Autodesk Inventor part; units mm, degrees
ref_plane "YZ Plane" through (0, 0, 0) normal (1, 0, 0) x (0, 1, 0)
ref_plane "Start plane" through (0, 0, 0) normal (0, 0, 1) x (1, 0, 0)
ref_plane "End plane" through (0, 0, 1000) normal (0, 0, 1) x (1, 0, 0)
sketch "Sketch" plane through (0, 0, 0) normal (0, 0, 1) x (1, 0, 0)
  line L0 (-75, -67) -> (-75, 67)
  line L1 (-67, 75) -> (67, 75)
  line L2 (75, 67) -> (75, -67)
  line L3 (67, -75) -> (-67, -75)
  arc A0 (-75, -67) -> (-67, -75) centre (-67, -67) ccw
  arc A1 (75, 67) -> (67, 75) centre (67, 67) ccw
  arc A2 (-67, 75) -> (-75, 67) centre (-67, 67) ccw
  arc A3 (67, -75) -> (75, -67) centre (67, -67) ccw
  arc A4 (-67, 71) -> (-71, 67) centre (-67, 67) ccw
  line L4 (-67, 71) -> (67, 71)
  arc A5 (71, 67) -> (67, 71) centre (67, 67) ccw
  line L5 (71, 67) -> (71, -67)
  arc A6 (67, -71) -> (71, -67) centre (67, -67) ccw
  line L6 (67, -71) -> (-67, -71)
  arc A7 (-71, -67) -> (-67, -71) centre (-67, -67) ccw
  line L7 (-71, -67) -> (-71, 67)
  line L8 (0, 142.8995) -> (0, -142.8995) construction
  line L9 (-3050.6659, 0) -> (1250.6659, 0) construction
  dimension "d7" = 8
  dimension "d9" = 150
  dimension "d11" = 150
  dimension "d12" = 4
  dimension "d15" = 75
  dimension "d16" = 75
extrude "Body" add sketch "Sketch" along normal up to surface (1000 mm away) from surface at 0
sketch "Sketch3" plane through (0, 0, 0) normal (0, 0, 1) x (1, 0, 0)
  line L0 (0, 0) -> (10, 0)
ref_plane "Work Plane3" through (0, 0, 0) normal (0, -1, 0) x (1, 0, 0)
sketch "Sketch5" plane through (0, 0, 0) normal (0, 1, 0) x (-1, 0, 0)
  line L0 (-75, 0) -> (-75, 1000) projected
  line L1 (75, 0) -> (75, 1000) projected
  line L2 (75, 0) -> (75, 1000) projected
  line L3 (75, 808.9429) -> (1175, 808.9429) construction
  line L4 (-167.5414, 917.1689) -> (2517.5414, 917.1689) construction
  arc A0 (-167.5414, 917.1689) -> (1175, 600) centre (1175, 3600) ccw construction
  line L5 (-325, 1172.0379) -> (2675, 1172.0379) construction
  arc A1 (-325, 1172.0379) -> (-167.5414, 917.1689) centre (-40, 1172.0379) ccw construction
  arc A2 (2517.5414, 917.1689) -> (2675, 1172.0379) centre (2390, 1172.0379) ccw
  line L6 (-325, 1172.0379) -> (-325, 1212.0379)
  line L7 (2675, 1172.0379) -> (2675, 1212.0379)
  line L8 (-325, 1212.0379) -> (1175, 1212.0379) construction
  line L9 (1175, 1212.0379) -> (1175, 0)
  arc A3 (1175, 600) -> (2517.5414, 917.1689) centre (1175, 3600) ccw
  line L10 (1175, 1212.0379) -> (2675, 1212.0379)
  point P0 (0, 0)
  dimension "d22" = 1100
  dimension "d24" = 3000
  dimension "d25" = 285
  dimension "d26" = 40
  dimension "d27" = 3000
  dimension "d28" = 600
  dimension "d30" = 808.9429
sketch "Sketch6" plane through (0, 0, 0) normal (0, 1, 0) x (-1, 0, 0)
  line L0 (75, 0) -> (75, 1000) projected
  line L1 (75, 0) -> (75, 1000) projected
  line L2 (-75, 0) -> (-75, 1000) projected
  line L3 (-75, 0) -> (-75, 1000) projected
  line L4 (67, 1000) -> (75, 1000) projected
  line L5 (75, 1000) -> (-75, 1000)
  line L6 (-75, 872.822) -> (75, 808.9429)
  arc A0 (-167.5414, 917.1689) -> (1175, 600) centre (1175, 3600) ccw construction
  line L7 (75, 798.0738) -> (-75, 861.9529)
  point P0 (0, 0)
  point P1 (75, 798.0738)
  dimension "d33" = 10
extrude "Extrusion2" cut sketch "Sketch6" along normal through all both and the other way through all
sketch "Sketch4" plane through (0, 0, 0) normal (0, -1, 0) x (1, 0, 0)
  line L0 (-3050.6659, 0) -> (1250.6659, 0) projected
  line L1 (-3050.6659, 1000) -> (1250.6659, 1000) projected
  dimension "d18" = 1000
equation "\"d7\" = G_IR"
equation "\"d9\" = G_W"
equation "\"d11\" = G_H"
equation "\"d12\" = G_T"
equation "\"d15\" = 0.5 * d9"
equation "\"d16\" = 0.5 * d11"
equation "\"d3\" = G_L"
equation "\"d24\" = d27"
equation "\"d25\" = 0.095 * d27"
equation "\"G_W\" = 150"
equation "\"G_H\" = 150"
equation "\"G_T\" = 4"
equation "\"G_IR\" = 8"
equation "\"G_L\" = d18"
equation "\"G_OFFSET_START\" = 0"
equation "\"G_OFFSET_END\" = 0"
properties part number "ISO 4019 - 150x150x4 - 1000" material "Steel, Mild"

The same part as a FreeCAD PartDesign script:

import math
import FreeCAD as App
import Part
import Sketcher
from FreeCAD import Vector
Q = App.Units.Quantity


def add_polygon(sketch, points):
    """Adds a closed chain of lines whose ends are joined by coincident constraints."""
    first, n = sketch.GeometryCount, len(points)
    for a, b in zip(points, points[1:] + points[:1]):
        sketch.addGeometry(Part.LineSegment(App.Vector(*a, 0), App.Vector(*b, 0)), False)
    for i in range(n):
        sketch.addConstraint(Sketcher.Constraint("Coincident", first + i, 2, first + (i + 1) % n, 1))

doc = App.newDocument("Part")
body = doc.addObject("PartDesign::Body", "Body")

# Sketch on XY plane
sketch1 = doc.addObject("Sketcher::SketchObject", "Sketch")
body.addObject(sketch1)
sketch1.AttachmentSupport = (doc.XY_Plane, [""])
sketch1.MapMode = "FlatFace"
sketch1.addGeometry(Part.LineSegment(Vector(-75, 67, 0), Vector(-75, -67, 0)), False)
sketch1.addGeometry(Part.ArcOfCircle(Part.Circle(Vector(-67, -67, 0), Vector(0, 0, 1), 8), math.radians(180), math.radians(270)), False)
sketch1.addGeometry(Part.LineSegment(Vector(-67, -75, 0), Vector(67, -75, 0)), False)
sketch1.addGeometry(Part.ArcOfCircle(Part.Circle(Vector(67, -67, 0), Vector(0, 0, 1), 8), math.radians(-90), math.radians(0)), False)
sketch1.addGeometry(Part.LineSegment(Vector(75, -67, 0), Vector(75, 67, 0)), False)
sketch1.addGeometry(Part.ArcOfCircle(Part.Circle(Vector(67, 67, 0), Vector(0, 0, 1), 8), math.radians(0), math.radians(90)), False)
sketch1.addGeometry(Part.LineSegment(Vector(67, 75, 0), Vector(-67, 75, 0)), False)
sketch1.addGeometry(Part.ArcOfCircle(Part.Circle(Vector(-67, 67, 0), Vector(0, 0, 1), 8), math.radians(90), math.radians(180)), False)
sketch1.addGeometry(Part.ArcOfCircle(Part.Circle(Vector(-67, 67, 0), Vector(0, 0, 1), 4), math.radians(90), math.radians(180)), False)
sketch1.addGeometry(Part.LineSegment(Vector(-67, 71, 0), Vector(67, 71, 0)), False)
sketch1.addGeometry(Part.ArcOfCircle(Part.Circle(Vector(67, 67, 0), Vector(0, 0, 1), 4), math.radians(0), math.radians(90)), False)
sketch1.addGeometry(Part.LineSegment(Vector(71, 67, 0), Vector(71, -67, 0)), False)
sketch1.addGeometry(Part.ArcOfCircle(Part.Circle(Vector(67, -67, 0), Vector(0, 0, 1), 4), math.radians(-90), math.radians(0)), False)
sketch1.addGeometry(Part.LineSegment(Vector(67, -71, 0), Vector(-67, -71, 0)), False)
sketch1.addGeometry(Part.ArcOfCircle(Part.Circle(Vector(-67, -67, 0), Vector(0, 0, 1), 4), math.radians(180), math.radians(270)), False)
sketch1.addGeometry(Part.LineSegment(Vector(-71, -67, 0), Vector(-71, 67, 0)), False)
sketch1.addConstraint(Sketcher.Constraint("Tangent", 0, 2, 1, 1))
sketch1.addConstraint(Sketcher.Constraint("Tangent", 1, 2, 2, 1))
sketch1.addConstraint(Sketcher.Constraint("Tangent", 2, 2, 3, 1))
sketch1.addConstraint(Sketcher.Constraint("Tangent", 3, 2, 4, 1))
sketch1.addConstraint(Sketcher.Constraint("Tangent", 4, 2, 5, 1))
sketch1.addConstraint(Sketcher.Constraint("Tangent", 5, 2, 6, 1))
sketch1.addConstraint(Sketcher.Constraint("Tangent", 6, 2, 7, 1))
sketch1.addConstraint(Sketcher.Constraint("Tangent", 7, 2, 0, 1))
sketch1.addConstraint(Sketcher.Constraint("Tangent", 8, 1, 9, 1))
sketch1.addConstraint(Sketcher.Constraint("Tangent", 9, 2, 10, 2))
sketch1.addConstraint(Sketcher.Constraint("Tangent", 10, 1, 11, 1))
sketch1.addConstraint(Sketcher.Constraint("Tangent", 11, 2, 12, 2))
sketch1.addConstraint(Sketcher.Constraint("Tangent", 12, 1, 13, 1))
sketch1.addConstraint(Sketcher.Constraint("Tangent", 13, 2, 14, 2))
sketch1.addConstraint(Sketcher.Constraint("Tangent", 14, 1, 15, 1))
sketch1.addConstraint(Sketcher.Constraint("Tangent", 15, 2, 8, 2))
sketch1.addConstraint(Sketcher.Constraint("Vertical", 0))
sketch1.addConstraint(Sketcher.Constraint("Horizontal", 2))
sketch1.addConstraint(Sketcher.Constraint("Vertical", 4))
sketch1.addConstraint(Sketcher.Constraint("Horizontal", 6))
sketch1.addConstraint(Sketcher.Constraint("Horizontal", 9))
sketch1.addConstraint(Sketcher.Constraint("Vertical", 11))
sketch1.addConstraint(Sketcher.Constraint("Horizontal", 13))
sketch1.addConstraint(Sketcher.Constraint("Vertical", 15))
sketch1.addConstraint(Sketcher.Constraint("Coincident", 8, 3, 7, 3))
sketch1.addConstraint(Sketcher.Constraint("Coincident", 10, 3, 5, 3))
sketch1.addConstraint(Sketcher.Constraint("Coincident", 12, 3, 3, 3))
sketch1.addConstraint(Sketcher.Constraint("Equal", 1, 3))
sketch1.addConstraint(Sketcher.Constraint("Equal", 3, 5))
sketch1.addConstraint(Sketcher.Constraint("Equal", 5, 7))
sketch1.addConstraint(Sketcher.Constraint("Equal", 12, 14))
sketch1.addConstraint(Sketcher.Constraint("Symmetric", 1, 3, 5, 3, -1, 1))
sketch1.addConstraint(Sketcher.Constraint("Equal", 13, 0))
sketch1.addConstraint(Sketcher.Constraint("Radius", 1, Q("8 mm")))
sketch1.addConstraint(Sketcher.Constraint("Radius", 8, Q("4 mm")))
sketch1.addConstraint(Sketcher.Constraint("DistanceX", 0, 2, -1, 1, Q("75 mm")))
pad1 = doc.addObject("PartDesign::Pad", "Pad")
body.addObject(pad1)
pad1.Profile = sketch1
pad1.Length = 1000

# Sketch on XZ plane
sketch2 = doc.addObject("Sketcher::SketchObject", "Sketch001")
body.addObject(sketch2)
sketch2.AttachmentSupport = (doc.XZ_Plane, [""])
sketch2.MapMode = "FlatFace"
add_polygon(sketch2, [(75, 862), (-75, 798), (-75, 1000), (75, 1000)])  # lines 0-3
sketch2.addConstraint(Sketcher.Constraint("Vertical", 1))
sketch2.addConstraint(Sketcher.Constraint("Horizontal", 2))
sketch2.addConstraint(Sketcher.Constraint("Vertical", 3))
sketch2.addConstraint(Sketcher.Constraint("DistanceX", 2, 1, 2, 2, Q("150 mm")))
sketch2.addConstraint(Sketcher.Constraint("DistanceX", 0, 2, -1, 1, Q("75 mm")))
sketch2.addConstraint(Sketcher.Constraint("DistanceY", -1, 1, 1, 2, Q("1000 mm")))
sketch2.addConstraint(Sketcher.Constraint("DistanceY", 3, 2, 3, 1, Q("138.047 mm")))
sketch2.addConstraint(Sketcher.Constraint("DistanceY", 1, 1, 1, 2, Q("201.9262 mm")))
pocket1 = doc.addObject("PartDesign::Pocket", "Pocket")
body.addObject(pocket1)
pocket1.Profile = sketch2
pocket1.Type = "ThroughAll"
pocket1.Midplane = True

doc.recompute()
